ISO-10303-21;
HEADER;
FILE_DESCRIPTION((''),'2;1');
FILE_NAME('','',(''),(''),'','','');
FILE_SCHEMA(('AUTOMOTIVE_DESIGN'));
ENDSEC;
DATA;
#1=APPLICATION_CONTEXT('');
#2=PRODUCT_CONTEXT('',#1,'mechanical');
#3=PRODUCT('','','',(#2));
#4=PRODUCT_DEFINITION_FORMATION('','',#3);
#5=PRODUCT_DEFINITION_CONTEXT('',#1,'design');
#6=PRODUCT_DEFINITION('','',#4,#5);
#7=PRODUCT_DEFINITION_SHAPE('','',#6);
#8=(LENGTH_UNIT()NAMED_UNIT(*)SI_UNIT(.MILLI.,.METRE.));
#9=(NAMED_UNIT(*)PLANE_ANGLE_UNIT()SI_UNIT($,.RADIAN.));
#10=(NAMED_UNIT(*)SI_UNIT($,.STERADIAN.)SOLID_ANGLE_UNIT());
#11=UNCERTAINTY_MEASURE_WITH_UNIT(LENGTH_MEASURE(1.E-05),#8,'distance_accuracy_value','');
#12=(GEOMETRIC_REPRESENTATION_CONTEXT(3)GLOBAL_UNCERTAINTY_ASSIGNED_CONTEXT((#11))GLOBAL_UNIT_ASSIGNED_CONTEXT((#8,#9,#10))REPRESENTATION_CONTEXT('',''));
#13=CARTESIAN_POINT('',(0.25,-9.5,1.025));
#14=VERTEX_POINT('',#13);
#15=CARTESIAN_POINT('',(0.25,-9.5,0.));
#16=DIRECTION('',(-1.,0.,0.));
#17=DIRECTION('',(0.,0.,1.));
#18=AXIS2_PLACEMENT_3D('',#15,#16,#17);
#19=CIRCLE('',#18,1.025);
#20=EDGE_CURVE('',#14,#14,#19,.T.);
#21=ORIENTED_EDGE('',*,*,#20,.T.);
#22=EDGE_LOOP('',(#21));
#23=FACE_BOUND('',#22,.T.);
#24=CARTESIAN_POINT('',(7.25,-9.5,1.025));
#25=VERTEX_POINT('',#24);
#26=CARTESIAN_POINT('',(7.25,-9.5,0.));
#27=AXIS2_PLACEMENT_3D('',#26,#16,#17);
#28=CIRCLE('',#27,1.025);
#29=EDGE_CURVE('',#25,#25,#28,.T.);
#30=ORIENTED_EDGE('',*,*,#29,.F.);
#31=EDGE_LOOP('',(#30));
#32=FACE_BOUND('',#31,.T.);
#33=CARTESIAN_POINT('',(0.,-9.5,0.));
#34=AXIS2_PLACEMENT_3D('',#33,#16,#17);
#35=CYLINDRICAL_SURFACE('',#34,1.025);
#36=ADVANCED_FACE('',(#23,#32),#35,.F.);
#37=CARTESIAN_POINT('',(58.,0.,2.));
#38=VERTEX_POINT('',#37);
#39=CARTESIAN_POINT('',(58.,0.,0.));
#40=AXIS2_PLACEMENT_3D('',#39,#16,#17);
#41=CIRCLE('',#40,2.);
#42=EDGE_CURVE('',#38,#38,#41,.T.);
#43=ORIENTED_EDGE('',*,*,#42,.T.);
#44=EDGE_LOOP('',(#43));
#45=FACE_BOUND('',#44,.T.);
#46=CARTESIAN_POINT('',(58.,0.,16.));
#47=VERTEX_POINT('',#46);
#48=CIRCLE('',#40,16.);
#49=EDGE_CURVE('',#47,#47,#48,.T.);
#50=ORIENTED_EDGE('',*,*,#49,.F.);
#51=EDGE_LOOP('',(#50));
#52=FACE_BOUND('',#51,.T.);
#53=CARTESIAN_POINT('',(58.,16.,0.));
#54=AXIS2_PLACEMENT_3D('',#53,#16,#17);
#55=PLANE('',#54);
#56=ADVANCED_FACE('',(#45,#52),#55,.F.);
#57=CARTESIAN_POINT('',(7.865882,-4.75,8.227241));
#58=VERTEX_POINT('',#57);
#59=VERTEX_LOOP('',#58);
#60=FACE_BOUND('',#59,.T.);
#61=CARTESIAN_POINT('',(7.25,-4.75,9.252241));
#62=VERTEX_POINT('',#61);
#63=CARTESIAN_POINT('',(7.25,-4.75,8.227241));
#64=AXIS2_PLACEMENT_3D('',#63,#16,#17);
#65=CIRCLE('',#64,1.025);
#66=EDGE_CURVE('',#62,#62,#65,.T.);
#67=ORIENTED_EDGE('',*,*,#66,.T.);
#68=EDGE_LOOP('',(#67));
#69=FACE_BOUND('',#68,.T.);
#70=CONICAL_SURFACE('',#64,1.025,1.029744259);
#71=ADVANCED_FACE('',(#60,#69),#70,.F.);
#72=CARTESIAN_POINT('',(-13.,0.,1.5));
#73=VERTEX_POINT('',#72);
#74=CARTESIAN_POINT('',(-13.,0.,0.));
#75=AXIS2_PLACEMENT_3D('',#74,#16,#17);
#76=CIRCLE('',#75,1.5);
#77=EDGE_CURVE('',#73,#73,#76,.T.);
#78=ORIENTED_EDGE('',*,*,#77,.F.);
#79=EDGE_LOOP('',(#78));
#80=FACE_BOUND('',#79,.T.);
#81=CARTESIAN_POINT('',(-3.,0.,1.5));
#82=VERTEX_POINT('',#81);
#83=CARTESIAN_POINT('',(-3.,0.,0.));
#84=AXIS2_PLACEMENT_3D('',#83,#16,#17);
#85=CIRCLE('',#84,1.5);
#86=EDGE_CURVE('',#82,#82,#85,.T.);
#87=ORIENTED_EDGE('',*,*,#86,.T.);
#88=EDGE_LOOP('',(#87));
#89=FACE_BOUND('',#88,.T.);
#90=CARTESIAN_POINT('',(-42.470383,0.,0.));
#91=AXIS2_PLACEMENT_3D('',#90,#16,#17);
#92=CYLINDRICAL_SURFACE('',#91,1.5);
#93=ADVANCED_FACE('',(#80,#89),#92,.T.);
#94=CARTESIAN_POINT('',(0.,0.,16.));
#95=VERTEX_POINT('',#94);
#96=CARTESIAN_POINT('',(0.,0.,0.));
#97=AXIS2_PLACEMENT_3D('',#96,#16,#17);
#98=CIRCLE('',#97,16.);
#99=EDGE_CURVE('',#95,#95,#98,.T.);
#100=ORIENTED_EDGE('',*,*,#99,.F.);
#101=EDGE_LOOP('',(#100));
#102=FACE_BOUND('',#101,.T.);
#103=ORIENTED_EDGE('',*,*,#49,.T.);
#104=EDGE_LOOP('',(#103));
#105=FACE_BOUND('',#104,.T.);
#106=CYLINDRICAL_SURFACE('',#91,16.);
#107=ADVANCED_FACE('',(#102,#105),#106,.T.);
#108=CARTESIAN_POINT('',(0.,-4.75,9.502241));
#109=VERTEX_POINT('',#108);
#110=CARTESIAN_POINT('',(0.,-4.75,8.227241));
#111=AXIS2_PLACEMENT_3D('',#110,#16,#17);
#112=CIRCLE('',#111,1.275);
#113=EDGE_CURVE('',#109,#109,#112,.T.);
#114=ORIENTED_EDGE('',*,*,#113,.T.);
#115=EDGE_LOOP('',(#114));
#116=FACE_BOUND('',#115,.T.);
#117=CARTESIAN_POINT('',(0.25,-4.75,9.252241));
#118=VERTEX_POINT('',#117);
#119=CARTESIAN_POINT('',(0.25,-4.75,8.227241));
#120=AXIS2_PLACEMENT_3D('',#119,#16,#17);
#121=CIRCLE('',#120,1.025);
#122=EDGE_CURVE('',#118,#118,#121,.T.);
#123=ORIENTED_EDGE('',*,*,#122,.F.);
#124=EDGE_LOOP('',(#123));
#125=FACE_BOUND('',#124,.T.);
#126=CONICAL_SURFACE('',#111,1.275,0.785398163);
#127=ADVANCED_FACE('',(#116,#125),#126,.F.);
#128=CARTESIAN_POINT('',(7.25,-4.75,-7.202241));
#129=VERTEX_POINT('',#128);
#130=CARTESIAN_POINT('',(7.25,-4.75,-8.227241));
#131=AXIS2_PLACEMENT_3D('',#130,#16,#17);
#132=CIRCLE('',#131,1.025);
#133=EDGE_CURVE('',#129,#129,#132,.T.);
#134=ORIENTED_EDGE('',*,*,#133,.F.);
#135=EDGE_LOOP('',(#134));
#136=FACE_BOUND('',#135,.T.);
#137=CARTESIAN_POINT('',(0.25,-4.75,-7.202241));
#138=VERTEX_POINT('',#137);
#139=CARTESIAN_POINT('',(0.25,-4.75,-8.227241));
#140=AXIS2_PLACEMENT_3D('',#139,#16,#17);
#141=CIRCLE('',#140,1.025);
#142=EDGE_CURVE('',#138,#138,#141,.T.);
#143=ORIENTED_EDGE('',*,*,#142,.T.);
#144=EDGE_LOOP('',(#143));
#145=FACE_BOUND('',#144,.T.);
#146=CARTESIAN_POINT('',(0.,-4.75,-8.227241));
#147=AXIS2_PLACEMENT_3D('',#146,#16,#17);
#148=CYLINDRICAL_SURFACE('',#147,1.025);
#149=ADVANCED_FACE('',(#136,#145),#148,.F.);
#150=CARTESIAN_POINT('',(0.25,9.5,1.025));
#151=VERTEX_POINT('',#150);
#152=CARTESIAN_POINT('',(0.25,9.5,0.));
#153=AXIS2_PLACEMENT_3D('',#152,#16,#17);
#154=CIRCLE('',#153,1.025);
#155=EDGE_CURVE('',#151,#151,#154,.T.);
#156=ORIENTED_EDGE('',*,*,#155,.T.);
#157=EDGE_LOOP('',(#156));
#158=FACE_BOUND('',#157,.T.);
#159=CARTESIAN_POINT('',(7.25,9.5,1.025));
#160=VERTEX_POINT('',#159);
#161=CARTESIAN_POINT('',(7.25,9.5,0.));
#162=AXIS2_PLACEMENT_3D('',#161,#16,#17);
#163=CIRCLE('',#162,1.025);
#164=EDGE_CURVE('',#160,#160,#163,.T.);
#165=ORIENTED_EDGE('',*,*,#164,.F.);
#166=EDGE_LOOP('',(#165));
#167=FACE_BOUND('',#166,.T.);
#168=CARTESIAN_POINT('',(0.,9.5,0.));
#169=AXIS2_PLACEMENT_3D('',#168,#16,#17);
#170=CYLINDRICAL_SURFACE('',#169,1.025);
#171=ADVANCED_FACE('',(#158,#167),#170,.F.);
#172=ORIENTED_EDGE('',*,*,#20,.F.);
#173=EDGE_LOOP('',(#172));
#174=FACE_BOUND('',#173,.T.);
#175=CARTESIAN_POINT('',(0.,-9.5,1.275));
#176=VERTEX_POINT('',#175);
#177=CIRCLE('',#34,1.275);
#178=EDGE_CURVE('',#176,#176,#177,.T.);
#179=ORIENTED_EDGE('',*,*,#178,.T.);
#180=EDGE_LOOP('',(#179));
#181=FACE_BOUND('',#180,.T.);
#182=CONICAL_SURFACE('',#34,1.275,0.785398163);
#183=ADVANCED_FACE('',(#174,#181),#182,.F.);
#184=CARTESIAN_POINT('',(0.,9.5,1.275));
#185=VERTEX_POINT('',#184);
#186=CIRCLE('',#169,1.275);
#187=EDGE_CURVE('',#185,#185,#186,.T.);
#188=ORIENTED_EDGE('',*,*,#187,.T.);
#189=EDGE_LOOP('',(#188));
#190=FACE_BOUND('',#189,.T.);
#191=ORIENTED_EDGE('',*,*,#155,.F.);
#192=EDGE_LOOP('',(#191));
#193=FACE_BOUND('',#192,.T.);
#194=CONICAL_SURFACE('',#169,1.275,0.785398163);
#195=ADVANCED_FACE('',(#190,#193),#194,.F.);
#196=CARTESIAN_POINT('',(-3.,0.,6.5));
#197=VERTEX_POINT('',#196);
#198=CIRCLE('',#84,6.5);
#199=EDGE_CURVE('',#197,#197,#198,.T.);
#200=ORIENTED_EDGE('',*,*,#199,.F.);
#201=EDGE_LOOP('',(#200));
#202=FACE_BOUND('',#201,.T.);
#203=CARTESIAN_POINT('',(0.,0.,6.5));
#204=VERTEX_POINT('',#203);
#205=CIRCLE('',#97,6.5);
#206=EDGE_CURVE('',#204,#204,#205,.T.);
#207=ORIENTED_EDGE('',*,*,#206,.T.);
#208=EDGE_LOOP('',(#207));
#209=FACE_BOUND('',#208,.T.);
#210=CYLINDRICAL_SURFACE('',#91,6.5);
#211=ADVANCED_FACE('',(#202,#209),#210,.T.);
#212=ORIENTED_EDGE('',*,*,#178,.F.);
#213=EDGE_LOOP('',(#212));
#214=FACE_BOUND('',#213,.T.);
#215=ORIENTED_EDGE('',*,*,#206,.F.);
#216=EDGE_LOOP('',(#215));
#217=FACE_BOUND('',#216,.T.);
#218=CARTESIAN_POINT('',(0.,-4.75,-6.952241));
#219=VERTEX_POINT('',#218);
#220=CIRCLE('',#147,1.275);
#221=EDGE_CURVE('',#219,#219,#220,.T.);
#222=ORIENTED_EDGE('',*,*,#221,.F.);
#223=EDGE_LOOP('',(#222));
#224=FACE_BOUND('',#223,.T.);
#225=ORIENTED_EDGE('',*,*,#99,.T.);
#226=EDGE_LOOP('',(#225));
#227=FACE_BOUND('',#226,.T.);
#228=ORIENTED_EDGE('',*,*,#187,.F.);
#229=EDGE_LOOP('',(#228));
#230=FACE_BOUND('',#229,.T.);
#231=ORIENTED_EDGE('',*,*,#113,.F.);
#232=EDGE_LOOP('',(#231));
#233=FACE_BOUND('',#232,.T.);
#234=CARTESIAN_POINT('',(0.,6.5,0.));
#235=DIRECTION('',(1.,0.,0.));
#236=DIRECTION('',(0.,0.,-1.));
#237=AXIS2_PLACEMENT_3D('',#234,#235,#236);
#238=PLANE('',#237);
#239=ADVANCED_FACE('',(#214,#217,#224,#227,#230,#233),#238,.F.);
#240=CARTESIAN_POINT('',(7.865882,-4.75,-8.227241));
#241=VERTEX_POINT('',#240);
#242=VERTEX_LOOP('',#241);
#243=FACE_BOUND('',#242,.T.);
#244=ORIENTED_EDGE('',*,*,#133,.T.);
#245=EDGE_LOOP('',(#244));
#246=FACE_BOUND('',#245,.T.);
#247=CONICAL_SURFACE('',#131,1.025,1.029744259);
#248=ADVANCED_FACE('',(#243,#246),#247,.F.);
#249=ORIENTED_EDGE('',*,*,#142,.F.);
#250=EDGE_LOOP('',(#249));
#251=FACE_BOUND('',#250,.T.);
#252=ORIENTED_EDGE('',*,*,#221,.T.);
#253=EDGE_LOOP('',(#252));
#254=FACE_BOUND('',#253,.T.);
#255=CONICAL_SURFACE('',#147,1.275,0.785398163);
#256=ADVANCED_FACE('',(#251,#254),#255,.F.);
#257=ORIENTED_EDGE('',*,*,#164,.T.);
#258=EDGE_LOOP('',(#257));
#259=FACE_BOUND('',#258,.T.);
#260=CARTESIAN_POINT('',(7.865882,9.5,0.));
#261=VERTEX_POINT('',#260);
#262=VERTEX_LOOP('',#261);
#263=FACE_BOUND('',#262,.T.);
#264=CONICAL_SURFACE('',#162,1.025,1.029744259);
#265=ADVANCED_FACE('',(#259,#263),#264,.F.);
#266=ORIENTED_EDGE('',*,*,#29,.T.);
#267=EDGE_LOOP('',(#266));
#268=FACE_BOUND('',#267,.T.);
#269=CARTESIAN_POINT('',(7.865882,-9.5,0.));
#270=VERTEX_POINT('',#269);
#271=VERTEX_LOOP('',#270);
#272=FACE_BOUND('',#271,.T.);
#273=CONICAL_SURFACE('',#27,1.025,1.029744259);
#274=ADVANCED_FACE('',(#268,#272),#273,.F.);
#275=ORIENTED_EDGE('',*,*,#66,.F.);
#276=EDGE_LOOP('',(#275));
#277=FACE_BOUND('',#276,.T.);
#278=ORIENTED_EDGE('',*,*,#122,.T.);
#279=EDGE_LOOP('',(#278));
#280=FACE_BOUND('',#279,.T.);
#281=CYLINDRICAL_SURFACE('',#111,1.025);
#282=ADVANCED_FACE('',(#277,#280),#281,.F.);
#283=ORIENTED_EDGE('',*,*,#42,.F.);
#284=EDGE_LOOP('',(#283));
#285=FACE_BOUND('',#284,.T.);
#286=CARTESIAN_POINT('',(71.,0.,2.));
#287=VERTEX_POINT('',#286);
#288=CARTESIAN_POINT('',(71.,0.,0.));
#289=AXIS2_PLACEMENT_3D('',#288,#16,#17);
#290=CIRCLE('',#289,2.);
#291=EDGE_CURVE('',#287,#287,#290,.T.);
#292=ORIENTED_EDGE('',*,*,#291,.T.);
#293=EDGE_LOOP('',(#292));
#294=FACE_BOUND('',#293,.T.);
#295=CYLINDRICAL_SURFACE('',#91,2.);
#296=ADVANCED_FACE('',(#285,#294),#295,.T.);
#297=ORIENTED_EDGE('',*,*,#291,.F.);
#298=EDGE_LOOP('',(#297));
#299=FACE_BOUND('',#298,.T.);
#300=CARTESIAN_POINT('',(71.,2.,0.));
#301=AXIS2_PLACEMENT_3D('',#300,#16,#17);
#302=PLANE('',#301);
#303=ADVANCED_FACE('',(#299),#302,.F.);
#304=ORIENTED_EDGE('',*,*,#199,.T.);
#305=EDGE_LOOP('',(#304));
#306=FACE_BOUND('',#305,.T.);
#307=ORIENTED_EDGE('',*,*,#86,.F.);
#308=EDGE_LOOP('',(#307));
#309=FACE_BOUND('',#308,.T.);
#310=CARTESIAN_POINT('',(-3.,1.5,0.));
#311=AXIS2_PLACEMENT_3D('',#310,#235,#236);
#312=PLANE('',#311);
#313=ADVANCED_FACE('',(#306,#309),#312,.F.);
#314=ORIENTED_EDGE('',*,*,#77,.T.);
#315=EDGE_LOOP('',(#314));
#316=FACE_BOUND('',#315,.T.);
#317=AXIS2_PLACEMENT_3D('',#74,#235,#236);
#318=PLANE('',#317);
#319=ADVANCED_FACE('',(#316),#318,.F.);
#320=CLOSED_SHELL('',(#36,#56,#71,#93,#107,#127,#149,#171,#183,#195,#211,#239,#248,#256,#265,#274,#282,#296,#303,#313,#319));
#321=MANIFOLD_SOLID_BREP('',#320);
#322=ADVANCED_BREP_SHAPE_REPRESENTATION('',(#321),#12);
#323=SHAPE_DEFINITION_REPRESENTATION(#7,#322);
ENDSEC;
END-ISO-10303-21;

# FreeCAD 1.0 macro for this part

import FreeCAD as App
import Part
import Sketcher
Q = App.Units.Quantity

doc = App.newDocument("Part")
body = doc.addObject("PartDesign::Body", "Body")

# Sketch on XY plane
sketch1 = doc.addObject("Sketcher::SketchObject", "Sketch")
body.addObject(sketch1)
sketch1.AttachmentSupport = (doc.XY_Plane, [""])
sketch1.MapMode = "FlatFace"
sketch1.addGeometry([
    Part.LineSegment(App.Vector(58, 16, 0), App.Vector(0, 16, 0)),  # 0
    Part.LineSegment(App.Vector(0, 16, 0), App.Vector(0, 6.5, 0)),  # 1
    Part.LineSegment(App.Vector(0, 6.5, 0), App.Vector(-3, 6.5, 0)),  # 2
    Part.LineSegment(App.Vector(-3, 6.5, 0), App.Vector(-3, 1.5, 0)),  # 3
    Part.LineSegment(App.Vector(-3, 1.5, 0), App.Vector(-13, 1.5, 0)),  # 4
    Part.LineSegment(App.Vector(-13, 1.5, 0), App.Vector(-13, 0, 0)),  # 5
    Part.LineSegment(App.Vector(-13, 0, 0), App.Vector(71, 0, 0)),  # 6
    Part.LineSegment(App.Vector(71, 0, 0), App.Vector(71, 2, 0)),  # 7
    Part.LineSegment(App.Vector(71, 2, 0), App.Vector(58, 2, 0)),  # 8
    Part.LineSegment(App.Vector(58, 2, 0), App.Vector(58, 16, 0)),  # 9
], False)
sketch1.addConstraint([
    Sketcher.Constraint("Coincident", 0, 2, 1, 1),
    Sketcher.Constraint("Coincident", 1, 2, 2, 1),
    Sketcher.Constraint("Coincident", 2, 2, 3, 1),
    Sketcher.Constraint("Coincident", 3, 2, 4, 1),
    Sketcher.Constraint("Coincident", 4, 2, 5, 1),
    Sketcher.Constraint("Coincident", 5, 2, 6, 1),
    Sketcher.Constraint("Coincident", 6, 2, 7, 1),
    Sketcher.Constraint("Coincident", 7, 2, 8, 1),
    Sketcher.Constraint("Coincident", 8, 2, 9, 1),
    Sketcher.Constraint("Coincident", 9, 2, 0, 1),
    Sketcher.Constraint("Horizontal", 0),
    Sketcher.Constraint("Vertical", 1),
    Sketcher.Constraint("Horizontal", 2),
    Sketcher.Constraint("Vertical", 3),
    Sketcher.Constraint("Horizontal", 4),
    Sketcher.Constraint("Vertical", 5),
    Sketcher.Constraint("Horizontal", 6),
    Sketcher.Constraint("Vertical", 7),
    Sketcher.Constraint("Horizontal", 8),
    Sketcher.Constraint("Vertical", 9),
    Sketcher.Constraint("PointOnObject", 0, 2, -2),
    Sketcher.Constraint("PointOnObject", 5, 2, -1),
    Sketcher.Constraint("DistanceX", 0, 2, 0, 1, Q("58 mm")),
    Sketcher.Constraint("DistanceX", 2, 2, 2, 1, Q("3 mm")),
    Sketcher.Constraint("DistanceX", 4, 2, 4, 1, Q("10 mm")),
    Sketcher.Constraint("DistanceX", 6, 1, 6, 2, Q("84 mm")),
    Sketcher.Constraint("DistanceY", 3, 2, 3, 1, Q("5 mm")),
    Sketcher.Constraint("DistanceY", 7, 1, 7, 2, Q("2 mm")),
    Sketcher.Constraint("DistanceY", 9, 1, 9, 2, Q("14 mm")),
    Sketcher.Constraint("DistanceY", 1, 2, 1, 1, Q("9.5 mm")),
])
revolution = doc.addObject("PartDesign::Revolution", "Revolution")
body.addObject(revolution)
revolution.Profile = sketch1
revolution.ReferenceAxis = (sketch1, ["H_Axis"])
revolution.Angle = 360

# Sketch on YZ plane
sketch2 = doc.addObject("Sketcher::SketchObject", "Sketch001")
body.addObject(sketch2)
sketch2.AttachmentSupport = (doc.YZ_Plane, [""])
sketch2.MapMode = "FlatFace"
sketch2.addGeometry([
    Part.Circle(App.Vector(9.5, 0, 0), App.Vector(0, 0, 1), 1.025),
    Part.Circle(App.Vector(-4.75, -8.227241, 0), App.Vector(0, 0, 1), 1.025),
    Part.Circle(App.Vector(-4.75, 8.227241, 0), App.Vector(0, 0, 1), 1.025),
    Part.Circle(App.Vector(-9.5, 0, 0), App.Vector(0, 0, 1), 1.025),
], False)
sketch2.addConstraint([
    Sketcher.Constraint("Equal", 0, 1),
    Sketcher.Constraint("Equal", 1, 2),
    Sketcher.Constraint("Equal", 2, 3),
    Sketcher.Constraint("Symmetric", 0, 3, 3, 3, -1, 1),
    Sketcher.Constraint("Symmetric", 1, 3, 2, 3, -1),
    Sketcher.Constraint("PointOnObject", 0, 3, -1),
    Sketcher.Constraint("Diameter", 0, Q("2.05 mm")),
    Sketcher.Constraint("DistanceX", 3, 3, 0, 3, Q("19 mm")),
    Sketcher.Constraint("DistanceX", 1, 3, -1, 1, Q("4.75 mm")),
    Sketcher.Constraint("DistanceY", 1, 3, -1, 1, Q("8.227241 mm")),
])
doc.recompute()
hole = doc.addObject("PartDesign::Hole", "Hole")
body.addObject(hole)
hole.Profile = sketch2
hole.ThreadType = "None"
hole.Diameter = 2.05
hole.DepthType = "Dimension"
hole.Depth = 7.25
hole.DrillPoint = "Angled"
hole.DrillPointAngle = 118
hole.HoleCutType = "Countersink"
hole.HoleCutDiameter = 2.55
hole.HoleCutCountersinkAngle = 90
hole.Reversed = True

doc.recompute()
